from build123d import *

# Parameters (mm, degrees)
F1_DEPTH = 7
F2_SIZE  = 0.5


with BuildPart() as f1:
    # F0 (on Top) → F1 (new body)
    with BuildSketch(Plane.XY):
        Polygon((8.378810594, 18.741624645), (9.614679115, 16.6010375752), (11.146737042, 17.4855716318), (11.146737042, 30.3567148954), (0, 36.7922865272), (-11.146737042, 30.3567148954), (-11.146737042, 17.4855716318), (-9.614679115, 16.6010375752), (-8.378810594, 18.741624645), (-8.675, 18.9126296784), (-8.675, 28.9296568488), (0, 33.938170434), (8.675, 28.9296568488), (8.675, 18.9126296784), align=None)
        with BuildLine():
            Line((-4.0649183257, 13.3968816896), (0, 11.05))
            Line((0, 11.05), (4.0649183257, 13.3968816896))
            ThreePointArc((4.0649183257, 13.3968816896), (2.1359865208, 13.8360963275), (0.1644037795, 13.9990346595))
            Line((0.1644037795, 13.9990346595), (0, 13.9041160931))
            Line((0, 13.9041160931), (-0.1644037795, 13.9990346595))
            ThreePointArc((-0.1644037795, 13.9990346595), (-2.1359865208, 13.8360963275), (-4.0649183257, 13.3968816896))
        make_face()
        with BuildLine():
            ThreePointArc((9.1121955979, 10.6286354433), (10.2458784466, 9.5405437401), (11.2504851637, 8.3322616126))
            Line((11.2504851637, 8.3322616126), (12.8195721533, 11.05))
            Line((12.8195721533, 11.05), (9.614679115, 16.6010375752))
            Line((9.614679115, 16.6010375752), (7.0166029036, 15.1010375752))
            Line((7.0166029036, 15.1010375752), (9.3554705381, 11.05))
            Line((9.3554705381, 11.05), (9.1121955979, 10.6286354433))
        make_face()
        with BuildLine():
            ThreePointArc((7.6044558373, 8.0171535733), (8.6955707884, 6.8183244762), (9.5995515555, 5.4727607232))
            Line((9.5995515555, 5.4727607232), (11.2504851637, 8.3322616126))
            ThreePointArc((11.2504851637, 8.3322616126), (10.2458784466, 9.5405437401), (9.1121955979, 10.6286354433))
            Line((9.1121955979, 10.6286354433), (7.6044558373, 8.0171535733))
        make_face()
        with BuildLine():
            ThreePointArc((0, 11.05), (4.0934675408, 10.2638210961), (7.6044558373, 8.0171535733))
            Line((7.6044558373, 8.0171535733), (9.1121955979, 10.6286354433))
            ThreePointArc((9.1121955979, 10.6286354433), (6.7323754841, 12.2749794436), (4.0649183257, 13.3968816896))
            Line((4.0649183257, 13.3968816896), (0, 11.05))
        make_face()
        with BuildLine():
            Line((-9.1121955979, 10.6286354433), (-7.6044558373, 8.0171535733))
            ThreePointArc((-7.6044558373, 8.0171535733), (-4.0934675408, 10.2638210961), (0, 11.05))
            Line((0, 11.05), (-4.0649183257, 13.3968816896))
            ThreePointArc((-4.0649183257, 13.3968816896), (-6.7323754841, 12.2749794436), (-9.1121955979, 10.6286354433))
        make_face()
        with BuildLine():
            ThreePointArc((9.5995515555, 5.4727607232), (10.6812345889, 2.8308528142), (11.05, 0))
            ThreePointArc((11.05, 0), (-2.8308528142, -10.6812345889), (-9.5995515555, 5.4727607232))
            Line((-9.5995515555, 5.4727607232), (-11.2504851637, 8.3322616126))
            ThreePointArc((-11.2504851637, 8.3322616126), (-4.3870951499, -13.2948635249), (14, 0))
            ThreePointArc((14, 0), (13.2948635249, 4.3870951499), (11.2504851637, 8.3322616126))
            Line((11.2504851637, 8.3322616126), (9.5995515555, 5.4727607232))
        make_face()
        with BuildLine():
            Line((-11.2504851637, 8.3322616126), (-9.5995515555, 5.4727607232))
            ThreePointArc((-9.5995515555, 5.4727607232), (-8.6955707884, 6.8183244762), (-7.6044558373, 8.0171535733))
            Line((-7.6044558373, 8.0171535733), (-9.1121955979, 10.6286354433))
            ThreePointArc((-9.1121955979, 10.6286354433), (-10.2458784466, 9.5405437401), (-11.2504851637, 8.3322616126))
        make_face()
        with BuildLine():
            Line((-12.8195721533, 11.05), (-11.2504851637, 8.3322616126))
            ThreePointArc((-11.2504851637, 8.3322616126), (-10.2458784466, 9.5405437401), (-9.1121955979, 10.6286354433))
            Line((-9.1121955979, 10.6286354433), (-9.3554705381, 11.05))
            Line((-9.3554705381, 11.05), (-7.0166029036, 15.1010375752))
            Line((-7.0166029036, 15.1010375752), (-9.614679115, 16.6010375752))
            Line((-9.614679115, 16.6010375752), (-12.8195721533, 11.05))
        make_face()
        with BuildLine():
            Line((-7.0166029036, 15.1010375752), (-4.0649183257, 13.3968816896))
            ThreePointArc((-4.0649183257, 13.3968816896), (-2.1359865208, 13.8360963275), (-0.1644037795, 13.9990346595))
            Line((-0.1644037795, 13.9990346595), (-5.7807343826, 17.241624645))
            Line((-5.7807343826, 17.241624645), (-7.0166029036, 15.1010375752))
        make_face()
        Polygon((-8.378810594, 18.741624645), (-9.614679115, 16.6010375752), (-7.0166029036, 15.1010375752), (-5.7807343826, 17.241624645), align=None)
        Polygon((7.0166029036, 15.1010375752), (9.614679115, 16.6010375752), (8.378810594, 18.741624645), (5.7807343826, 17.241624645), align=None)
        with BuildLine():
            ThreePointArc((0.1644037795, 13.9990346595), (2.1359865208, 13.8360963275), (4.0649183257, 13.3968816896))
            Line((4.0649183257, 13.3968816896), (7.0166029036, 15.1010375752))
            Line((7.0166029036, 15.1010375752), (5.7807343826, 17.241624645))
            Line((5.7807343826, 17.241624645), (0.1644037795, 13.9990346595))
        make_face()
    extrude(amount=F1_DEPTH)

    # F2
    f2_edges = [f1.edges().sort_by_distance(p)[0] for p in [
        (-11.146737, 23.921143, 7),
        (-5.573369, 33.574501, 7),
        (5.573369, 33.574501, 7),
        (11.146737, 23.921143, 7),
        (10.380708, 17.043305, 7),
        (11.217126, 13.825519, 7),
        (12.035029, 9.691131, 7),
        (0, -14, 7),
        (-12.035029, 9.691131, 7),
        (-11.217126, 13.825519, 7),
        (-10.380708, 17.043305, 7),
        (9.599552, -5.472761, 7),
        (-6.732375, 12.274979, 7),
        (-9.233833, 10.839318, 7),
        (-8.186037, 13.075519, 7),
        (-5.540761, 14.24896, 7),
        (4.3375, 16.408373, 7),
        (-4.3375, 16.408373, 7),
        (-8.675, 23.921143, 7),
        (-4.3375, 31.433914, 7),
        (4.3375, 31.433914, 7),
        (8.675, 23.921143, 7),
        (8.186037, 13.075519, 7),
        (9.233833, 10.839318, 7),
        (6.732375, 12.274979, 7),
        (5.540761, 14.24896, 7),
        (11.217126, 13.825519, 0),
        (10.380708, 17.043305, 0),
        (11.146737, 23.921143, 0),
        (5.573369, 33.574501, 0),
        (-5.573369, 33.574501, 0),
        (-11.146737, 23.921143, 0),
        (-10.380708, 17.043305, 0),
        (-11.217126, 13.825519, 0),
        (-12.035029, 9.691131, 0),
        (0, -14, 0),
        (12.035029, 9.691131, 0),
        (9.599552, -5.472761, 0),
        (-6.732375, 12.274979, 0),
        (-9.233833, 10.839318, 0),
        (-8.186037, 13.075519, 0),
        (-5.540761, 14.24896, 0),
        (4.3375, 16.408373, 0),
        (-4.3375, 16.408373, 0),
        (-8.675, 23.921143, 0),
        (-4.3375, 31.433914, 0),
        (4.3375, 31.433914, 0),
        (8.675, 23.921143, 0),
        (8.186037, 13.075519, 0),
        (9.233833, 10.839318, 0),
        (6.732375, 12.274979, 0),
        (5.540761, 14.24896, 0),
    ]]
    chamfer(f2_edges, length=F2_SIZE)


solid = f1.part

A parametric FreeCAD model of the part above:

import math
import FreeCAD as App
import Part
import Sketcher

V = App.Vector
Q = App.Units.Quantity


def edges_at(feature, points):
    """Names of the edges that pass closest to the given points."""
    edges = feature.Shape.Edges
    near = lambda p: min(range(len(edges)), key=lambda i: edges[i].distToShape(Part.Vertex(*p))[0])
    return sorted({f"Edge{near(p) + 1}" for p in points})

doc = App.newDocument("Part")
params = doc.addObject("Spreadsheet::Sheet", "Params")
for row, (alias, value) in enumerate([
    ("sketch1_radius", "14 mm"),
    ("sketch1_radius2", "11.05 mm"),
    ("pad1_length", "7 mm"),
    ("chamfer_size", "0.5 mm"),
], start=1):
    params.set(f"A{row}", alias)
    params.set(f"B{row}", "=" + value)
    params.setAlias(f"B{row}", alias)

body = doc.addObject("PartDesign::Body", "Body")

# Sketch on XY plane
sketch1 = body.newObject("Sketcher::SketchObject", "Sketch")
sketch1.AttachmentSupport = (doc.getObject("XY_Plane"), [""])
sketch1.MapMode = "FlatFace"
sketch1.addGeometry(Part.LineSegment(V(12.82, 11.05, 0), V(9.61, 16.6, 0)), False)
sketch1.addGeometry(Part.LineSegment(V(9.61, 16.6, 0), V(11.15, 17.49, 0)), False)
sketch1.addGeometry(Part.LineSegment(V(11.15, 17.49, 0), V(11.15, 30.36, 0)), False)
sketch1.addGeometry(Part.LineSegment(V(11.15, 30.36, 0), V(0, 36.79, 0)), False)
sketch1.addGeometry(Part.LineSegment(V(0, 36.79, 0), V(-11.15, 30.36, 0)), False)
sketch1.addGeometry(Part.LineSegment(V(-11.15, 30.36, 0), V(-11.15, 17.49, 0)), False)
sketch1.addGeometry(Part.LineSegment(V(-11.15, 17.49, 0), V(-9.61, 16.6, 0)), False)
sketch1.addGeometry(Part.LineSegment(V(-9.61, 16.6, 0), V(-12.82, 11.05, 0)), False)
sketch1.addGeometry(Part.LineSegment(V(-12.82, 11.05, 0), V(-11.25, 8.33, 0)), False)
sketch1.addGeometry(Part.ArcOfCircle(Part.Circle(V(0, 0, 0), V(0, 0, 1), 14), math.radians(143), math.radians(360)), False)
sketch1.addGeometry(Part.ArcOfCircle(Part.Circle(V(0, 0, 0), V(0, 0, 1), 14), math.radians(0), math.radians(37)), False)
sketch1.addGeometry(Part.LineSegment(V(11.25, 8.33, 0), V(12.82, 11.05, 0)), False)
sketch1.addGeometry(Part.ArcOfCircle(Part.Circle(V(0, 0, 0), V(0, 0, 1), 11.05), math.radians(90), math.radians(133)), False)
sketch1.addGeometry(Part.ArcOfCircle(Part.Circle(V(0, 0, 0), V(0, 0, 1), 11.05), math.radians(47), math.radians(90)), False)
sketch1.addGeometry(Part.ArcOfCircle(Part.Circle(V(0, 0, 0), V(0, 0, 1), 11.05), math.radians(29.69), math.radians(46.51)), False)
sketch1.addGeometry(Part.ArcOfCircle(Part.Circle(V(0, 0, 0), V(0, 0, 1), 11.05), math.radians(0), math.radians(30)), False)
sketch1.addGeometry(Part.ArcOfCircle(Part.Circle(V(0, 0, 0), V(0, 0, 1), 11.05), math.radians(150), math.radians(360)), False)
sketch1.addGeometry(Part.ArcOfCircle(Part.Circle(V(0, 0, 0), V(0, 0, 1), 11.05), math.radians(133.49), math.radians(150.31)), False)
sketch1.addGeometry(Part.ArcOfCircle(Part.Circle(V(0, 0, 0), V(0, 0, 1), 14), math.radians(107), math.radians(131)), False)
sketch1.addGeometry(Part.LineSegment(V(-9.11, 10.63, 0), V(-9.36, 11.05, 0)), False)
sketch1.addGeometry(Part.LineSegment(V(-9.36, 11.05, 0), V(-7.02, 15.1, 0)), False)
sketch1.addGeometry(Part.LineSegment(V(-7.02, 15.1, 0), V(-4.06, 13.4, 0)), False)
sketch1.addGeometry(Part.LineSegment(V(8.68, 18.91, 0), V(8.38, 18.74, 0)), False)
sketch1.addGeometry(Part.LineSegment(V(8.38, 18.74, 0), V(0.16, 14, 0)), False)
sketch1.addGeometry(Part.LineSegment(V(0.16, 14, 0), V(0, 13.9, 0)), False)
sketch1.addGeometry(Part.LineSegment(V(0, 13.9, 0), V(-0.16, 14, 0)), False)
sketch1.addGeometry(Part.LineSegment(V(-0.16, 14, 0), V(-8.38, 18.74, 0)), False)
sketch1.addGeometry(Part.LineSegment(V(-8.38, 18.74, 0), V(-8.68, 18.91, 0)), False)
sketch1.addGeometry(Part.LineSegment(V(-8.68, 18.91, 0), V(-8.68, 28.93, 0)), False)
sketch1.addGeometry(Part.LineSegment(V(-8.68, 28.93, 0), V(0, 33.94, 0)), False)
sketch1.addGeometry(Part.LineSegment(V(0, 33.94, 0), V(8.68, 28.93, 0)), False)
sketch1.addGeometry(Part.LineSegment(V(8.68, 28.93, 0), V(8.68, 18.91, 0)), False)
sketch1.addGeometry(Part.LineSegment(V(7.02, 15.1, 0), V(9.36, 11.05, 0)), False)
sketch1.addGeometry(Part.LineSegment(V(9.36, 11.05, 0), V(9.11, 10.63, 0)), False)
sketch1.addGeometry(Part.ArcOfCircle(Part.Circle(V(0, 0, 0), V(0, 0, 1), 14), math.radians(49), math.radians(73)), False)
sketch1.addGeometry(Part.LineSegment(V(4.06, 13.4, 0), V(7.02, 15.1, 0)), False)
sketch1.addConstraint(Sketcher.Constraint("Coincident", 0, 2, 1, 1))
sketch1.addConstraint(Sketcher.Constraint("Coincident", 1, 2, 2, 1))
sketch1.addConstraint(Sketcher.Constraint("Coincident", 2, 2, 3, 1))
sketch1.addConstraint(Sketcher.Constraint("Coincident", 3, 2, 4, 1))
sketch1.addConstraint(Sketcher.Constraint("Coincident", 4, 2, 5, 1))
sketch1.addConstraint(Sketcher.Constraint("Coincident", 5, 2, 6, 1))
sketch1.addConstraint(Sketcher.Constraint("Coincident", 6, 2, 7, 1))
sketch1.addConstraint(Sketcher.Constraint("Coincident", 7, 2, 8, 1))
sketch1.addConstraint(Sketcher.Constraint("Coincident", 8, 2, 9, 1))
sketch1.addConstraint(Sketcher.Constraint("Tangent", 9, 2, 10, 1))
sketch1.addConstraint(Sketcher.Constraint("Coincident", 10, 2, 11, 1))
sketch1.addConstraint(Sketcher.Constraint("Coincident", 11, 2, 0, 1))
sketch1.addConstraint(Sketcher.Constraint("Tangent", 12, 1, 13, 2))
sketch1.addConstraint(Sketcher.Constraint("Tangent", 13, 1, 14, 2))
sketch1.addConstraint(Sketcher.Constraint("Tangent", 14, 1, 15, 2))
sketch1.addConstraint(Sketcher.Constraint("Tangent", 15, 1, 16, 2))
sketch1.addConstraint(Sketcher.Constraint("Tangent", 16, 1, 17, 2))
sketch1.addConstraint(Sketcher.Constraint("Tangent", 17, 1, 12, 2))
sketch1.addConstraint(Sketcher.Constraint("Coincident", 18, 2, 19, 1))
sketch1.addConstraint(Sketcher.Constraint("Coincident", 19, 2, 20, 1))
sketch1.addConstraint(Sketcher.Constraint("Coincident", 20, 2, 21, 1))
sketch1.addConstraint(Sketcher.Constraint("Coincident", 21, 2, 18, 1))
sketch1.addConstraint(Sketcher.Constraint("Coincident", 22, 2, 23, 1))
sketch1.addConstraint(Sketcher.Constraint("Coincident", 23, 2, 24, 1))
sketch1.addConstraint(Sketcher.Constraint("Coincident", 24, 2, 25, 1))
sketch1.addConstraint(Sketcher.Constraint("Coincident", 25, 2, 26, 1))
sketch1.addConstraint(Sketcher.Constraint("Coincident", 26, 2, 27, 1))
sketch1.addConstraint(Sketcher.Constraint("Coincident", 27, 2, 28, 1))
sketch1.addConstraint(Sketcher.Constraint("Coincident", 28, 2, 29, 1))
sketch1.addConstraint(Sketcher.Constraint("Coincident", 29, 2, 30, 1))
sketch1.addConstraint(Sketcher.Constraint("Coincident", 30, 2, 31, 1))
sketch1.addConstraint(Sketcher.Constraint("Coincident", 31, 2, 22, 1))
sketch1.addConstraint(Sketcher.Constraint("Coincident", 32, 2, 33, 1))
sketch1.addConstraint(Sketcher.Constraint("Coincident", 33, 2, 34, 1))
sketch1.addConstraint(Sketcher.Constraint("Coincident", 34, 2, 35, 1))
sketch1.addConstraint(Sketcher.Constraint("Coincident", 35, 2, 32, 1))
sketch1.addConstraint(Sketcher.Constraint("Vertical", 2))
sketch1.addConstraint(Sketcher.Constraint("Vertical", 5))
sketch1.addConstraint(Sketcher.Constraint("Vertical", 28))
sketch1.addConstraint(Sketcher.Constraint("Vertical", 31))
sketch1.addConstraint(Sketcher.Constraint("Coincident", 9, 3, -1, 1))
sketch1.addConstraint(Sketcher.Constraint("Coincident", 12, 3, -1, 1))
sketch1.addConstraint(Sketcher.Constraint("Coincident", 14, 3, -1, 1))
sketch1.addConstraint(Sketcher.Constraint("Coincident", 18, 3, -1, 1))
sketch1.addConstraint(Sketcher.Constraint("Coincident", 34, 3, -1, 1))
sketch1.addConstraint(Sketcher.Constraint("Equal", 9, 10))
sketch1.addConstraint(Sketcher.Constraint("Equal", 14, 15))
sketch1.addConstraint(Sketcher.Constraint("Equal", 10, 18))
sketch1.addConstraint(Sketcher.Constraint("Equal", 18, 34))
sketch1.addConstraint(Sketcher.Constraint("Symmetric", 2, 2, 4, 2, -2))
sketch1.addConstraint(Sketcher.Constraint("Symmetric", 0, 2, 6, 2, -2))
sketch1.addConstraint(Sketcher.Constraint("Symmetric", 7, 2, 11, 2, -2))
sketch1.addConstraint(Sketcher.Constraint("Symmetric", 23, 2, 25, 2, -2))
sketch1.addConstraint(Sketcher.Constraint("Symmetric", 22, 2, 26, 2, -2))
sketch1.addConstraint(Sketcher.Constraint("Symmetric", 28, 2, 30, 2, -2))
sketch1.addConstraint(Sketcher.Constraint("Symmetric", 19, 2, 32, 2, -2))
sketch1.addConstraint(Sketcher.Constraint("Symmetric", 20, 2, 35, 2, -2))
sketch1.addConstraint(Sketcher.Constraint("PointOnObject", 3, 2, -2))
sketch1.addConstraint(Sketcher.Constraint("PointOnObject", 9, 2, -1))
sketch1.addConstraint(Sketcher.Constraint("PointOnObject", 12, 1, -2))
sketch1.addConstraint(Sketcher.Constraint("PointOnObject", 15, 1, -1))
sketch1.addConstraint(Sketcher.Constraint("PointOnObject", 24, 2, -2))
sketch1.addConstraint(Sketcher.Constraint("PointOnObject", 29, 2, -2))
sketch1.addConstraint(Sketcher.Constraint("Perpendicular", 0, 1))
sketch1.addConstraint(Sketcher.Constraint("Parallel", 1, 4))
sketch1.addConstraint(Sketcher.Constraint("Parallel", 3, 6))
sketch1.addConstraint(Sketcher.Constraint("Perpendicular", 4, 8))
sketch1.addConstraint(Sketcher.Constraint("Parallel", 7, 11))
sketch1.addConstraint(Sketcher.Constraint("Parallel", 8, 19))
sketch1.addConstraint(Sketcher.Constraint("Parallel", 11, 20))
sketch1.addConstraint(Sketcher.Constraint("Perpendicular", 20, 21))
sketch1.addConstraint(Sketcher.Constraint("Perpendicular", 19, 22))
sketch1.addConstraint(Sketcher.Constraint("Parallel", 22, 23))
sketch1.addConstraint(Sketcher.Constraint("Parallel", 23, 24))
sketch1.addConstraint(Sketcher.Constraint("Parallel", 26, 27))
sketch1.addConstraint(Sketcher.Constraint("Parallel", 24, 29))
sketch1.addConstraint(Sketcher.Constraint("Perpendicular", 30, 33))
sketch1.addConstraint(Sketcher.Constraint("Perpendicular", 32, 35))
sketch1.addConstraint(Sketcher.Constraint("Horizontal", 11, 2, 12, 1))
sketch1.addConstraint(Sketcher.Constraint("Horizontal", 14, 1, 16, 1))
sketch1.addConstraint(Sketcher.Constraint("Horizontal", 13, 1, 17, 1))
sketch1.addConstraint(Sketcher.Constraint("Horizontal", 12, 1, 19, 2))
sketch1.addConstraint(Sketcher.Constraint("Radius", 9, Q("14 mm")))
sketch1.addConstraint(Sketcher.Constraint("Angle", 0, Q("120 deg")))
sketch1.addConstraint(Sketcher.Constraint("Radius", 12, Q("11.05 mm")))
sketch1.addConstraint(Sketcher.Constraint("DistanceY", 20, 2, 6, 2, Q("1.5 mm")))
sketch1.addConstraint(Sketcher.Constraint("DistanceX", 27, 2, -1, 1, Q("8.675 mm")))
sketch1.addConstraint(Sketcher.Constraint("DistanceY", 14, 1, 10, 2, Q("2.859501 mm")))
sketch1.addConstraint(Sketcher.Constraint("DistanceX", 7, 2, 19, 2, Q("3.464102 mm")))
sketch1.addConstraint(Sketcher.Constraint("DistanceX", 20, 2, 25, 2, Q("6.852199 mm")))
sketch1.addConstraint(Sketcher.Constraint("Distance", 1, Q("1.769068 mm")))
sketch1.addConstraint(Sketcher.Constraint("Distance", 19, Q("0.48655 mm")))
sketch1.addConstraint(Sketcher.Constraint("Distance", 21, Q("3.408312 mm")))
sketch1.addConstraint(Sketcher.Constraint("Distance", 22, Q("0.34201 mm")))
sketch1.addConstraint(Sketcher.Constraint("DistanceY", 2, 1, 2, 2, Q("12.871143 mm")))
sketch1.addConstraint(Sketcher.Constraint("DistanceY", 28, 1, 28, 2, Q("10.017027 mm")))
sketch1.addConstraint(Sketcher.Constraint("DistanceY", -1, 1, 27, 2, Q("18.91263 mm")))
sketch1.addConstraint(Sketcher.Constraint("DistanceX", 13, 1, 10, 2, Q("3.646029 mm")))
sketch1.setExpression("Constraints[82]", "Params.sketch1_radius")
sketch1.setExpression("Constraints[84]", "Params.sketch1_radius2")
pad1 = body.newObject("PartDesign::Pad", "Pad")
pad1.Profile = sketch1
pad1.setExpression("Length", "Params.pad1_length")
doc.recompute()

chamfer = body.newObject("PartDesign::Chamfer", "Chamfer")
chamfer.Base = (pad1, edges_at(pad1, [
    (-11.147, 23.921, 7),
    (-5.573, 33.575, 7),
    (5.573, 33.575, 7),
    (11.147, 23.921, 7),
    (10.381, 17.043, 7),
    (11.217, 13.826, 7),
    (12.035, 9.691, 7),
    (-4.387, -13.295, 7),
    (-12.035, 9.691, 7),
    (-11.217, 13.826, 7),
    (-10.381, 17.043, 7),
    (-2.831, -10.681, 7),
    (-6.732, 12.275, 7),
    (-9.234, 10.839, 7),
    (-8.186, 13.076, 7),
    (-5.541, 14.249, 7),
    (4.272, 16.37, 7),
    (-4.272, 16.37, 7),
    (-8.675, 23.921, 7),
    (-4.338, 31.434, 7),
    (4.338, 31.434, 7),
    (8.675, 23.921, 7),
    (8.186, 13.076, 7),
    (9.234, 10.839, 7),
    (6.732, 12.275, 7),
    (5.541, 14.249, 7),
    (11.217, 13.826, 0),
    (10.381, 17.043, 0),
    (11.147, 23.921, 0),
    (5.573, 33.575, 0),
    (-5.573, 33.575, 0),
    (-11.147, 23.921, 0),
    (-10.381, 17.043, 0),
    (-11.217, 13.826, 0),
    (-12.035, 9.691, 0),
    (-4.387, -13.295, 0),
    (12.035, 9.691, 0),
    (-2.831, -10.681, 0),
    (-6.732, 12.275, 0),
    (-9.234, 10.839, 0),
    (-8.186, 13.076, 0),
    (-5.541, 14.249, 0),
    (4.272, 16.37, 0),
    (-4.272, 16.37, 0),
    (-8.675, 23.921, 0),
    (-4.338, 31.434, 0),
    (4.338, 31.434, 0),
    (8.675, 23.921, 0),
    (8.186, 13.076, 0),
    (9.234, 10.839, 0),
    (6.732, 12.275, 0),
    (5.541, 14.249, 0),
]))
chamfer.setExpression("Size", "Params.chamfer_size")

doc.recompute()
